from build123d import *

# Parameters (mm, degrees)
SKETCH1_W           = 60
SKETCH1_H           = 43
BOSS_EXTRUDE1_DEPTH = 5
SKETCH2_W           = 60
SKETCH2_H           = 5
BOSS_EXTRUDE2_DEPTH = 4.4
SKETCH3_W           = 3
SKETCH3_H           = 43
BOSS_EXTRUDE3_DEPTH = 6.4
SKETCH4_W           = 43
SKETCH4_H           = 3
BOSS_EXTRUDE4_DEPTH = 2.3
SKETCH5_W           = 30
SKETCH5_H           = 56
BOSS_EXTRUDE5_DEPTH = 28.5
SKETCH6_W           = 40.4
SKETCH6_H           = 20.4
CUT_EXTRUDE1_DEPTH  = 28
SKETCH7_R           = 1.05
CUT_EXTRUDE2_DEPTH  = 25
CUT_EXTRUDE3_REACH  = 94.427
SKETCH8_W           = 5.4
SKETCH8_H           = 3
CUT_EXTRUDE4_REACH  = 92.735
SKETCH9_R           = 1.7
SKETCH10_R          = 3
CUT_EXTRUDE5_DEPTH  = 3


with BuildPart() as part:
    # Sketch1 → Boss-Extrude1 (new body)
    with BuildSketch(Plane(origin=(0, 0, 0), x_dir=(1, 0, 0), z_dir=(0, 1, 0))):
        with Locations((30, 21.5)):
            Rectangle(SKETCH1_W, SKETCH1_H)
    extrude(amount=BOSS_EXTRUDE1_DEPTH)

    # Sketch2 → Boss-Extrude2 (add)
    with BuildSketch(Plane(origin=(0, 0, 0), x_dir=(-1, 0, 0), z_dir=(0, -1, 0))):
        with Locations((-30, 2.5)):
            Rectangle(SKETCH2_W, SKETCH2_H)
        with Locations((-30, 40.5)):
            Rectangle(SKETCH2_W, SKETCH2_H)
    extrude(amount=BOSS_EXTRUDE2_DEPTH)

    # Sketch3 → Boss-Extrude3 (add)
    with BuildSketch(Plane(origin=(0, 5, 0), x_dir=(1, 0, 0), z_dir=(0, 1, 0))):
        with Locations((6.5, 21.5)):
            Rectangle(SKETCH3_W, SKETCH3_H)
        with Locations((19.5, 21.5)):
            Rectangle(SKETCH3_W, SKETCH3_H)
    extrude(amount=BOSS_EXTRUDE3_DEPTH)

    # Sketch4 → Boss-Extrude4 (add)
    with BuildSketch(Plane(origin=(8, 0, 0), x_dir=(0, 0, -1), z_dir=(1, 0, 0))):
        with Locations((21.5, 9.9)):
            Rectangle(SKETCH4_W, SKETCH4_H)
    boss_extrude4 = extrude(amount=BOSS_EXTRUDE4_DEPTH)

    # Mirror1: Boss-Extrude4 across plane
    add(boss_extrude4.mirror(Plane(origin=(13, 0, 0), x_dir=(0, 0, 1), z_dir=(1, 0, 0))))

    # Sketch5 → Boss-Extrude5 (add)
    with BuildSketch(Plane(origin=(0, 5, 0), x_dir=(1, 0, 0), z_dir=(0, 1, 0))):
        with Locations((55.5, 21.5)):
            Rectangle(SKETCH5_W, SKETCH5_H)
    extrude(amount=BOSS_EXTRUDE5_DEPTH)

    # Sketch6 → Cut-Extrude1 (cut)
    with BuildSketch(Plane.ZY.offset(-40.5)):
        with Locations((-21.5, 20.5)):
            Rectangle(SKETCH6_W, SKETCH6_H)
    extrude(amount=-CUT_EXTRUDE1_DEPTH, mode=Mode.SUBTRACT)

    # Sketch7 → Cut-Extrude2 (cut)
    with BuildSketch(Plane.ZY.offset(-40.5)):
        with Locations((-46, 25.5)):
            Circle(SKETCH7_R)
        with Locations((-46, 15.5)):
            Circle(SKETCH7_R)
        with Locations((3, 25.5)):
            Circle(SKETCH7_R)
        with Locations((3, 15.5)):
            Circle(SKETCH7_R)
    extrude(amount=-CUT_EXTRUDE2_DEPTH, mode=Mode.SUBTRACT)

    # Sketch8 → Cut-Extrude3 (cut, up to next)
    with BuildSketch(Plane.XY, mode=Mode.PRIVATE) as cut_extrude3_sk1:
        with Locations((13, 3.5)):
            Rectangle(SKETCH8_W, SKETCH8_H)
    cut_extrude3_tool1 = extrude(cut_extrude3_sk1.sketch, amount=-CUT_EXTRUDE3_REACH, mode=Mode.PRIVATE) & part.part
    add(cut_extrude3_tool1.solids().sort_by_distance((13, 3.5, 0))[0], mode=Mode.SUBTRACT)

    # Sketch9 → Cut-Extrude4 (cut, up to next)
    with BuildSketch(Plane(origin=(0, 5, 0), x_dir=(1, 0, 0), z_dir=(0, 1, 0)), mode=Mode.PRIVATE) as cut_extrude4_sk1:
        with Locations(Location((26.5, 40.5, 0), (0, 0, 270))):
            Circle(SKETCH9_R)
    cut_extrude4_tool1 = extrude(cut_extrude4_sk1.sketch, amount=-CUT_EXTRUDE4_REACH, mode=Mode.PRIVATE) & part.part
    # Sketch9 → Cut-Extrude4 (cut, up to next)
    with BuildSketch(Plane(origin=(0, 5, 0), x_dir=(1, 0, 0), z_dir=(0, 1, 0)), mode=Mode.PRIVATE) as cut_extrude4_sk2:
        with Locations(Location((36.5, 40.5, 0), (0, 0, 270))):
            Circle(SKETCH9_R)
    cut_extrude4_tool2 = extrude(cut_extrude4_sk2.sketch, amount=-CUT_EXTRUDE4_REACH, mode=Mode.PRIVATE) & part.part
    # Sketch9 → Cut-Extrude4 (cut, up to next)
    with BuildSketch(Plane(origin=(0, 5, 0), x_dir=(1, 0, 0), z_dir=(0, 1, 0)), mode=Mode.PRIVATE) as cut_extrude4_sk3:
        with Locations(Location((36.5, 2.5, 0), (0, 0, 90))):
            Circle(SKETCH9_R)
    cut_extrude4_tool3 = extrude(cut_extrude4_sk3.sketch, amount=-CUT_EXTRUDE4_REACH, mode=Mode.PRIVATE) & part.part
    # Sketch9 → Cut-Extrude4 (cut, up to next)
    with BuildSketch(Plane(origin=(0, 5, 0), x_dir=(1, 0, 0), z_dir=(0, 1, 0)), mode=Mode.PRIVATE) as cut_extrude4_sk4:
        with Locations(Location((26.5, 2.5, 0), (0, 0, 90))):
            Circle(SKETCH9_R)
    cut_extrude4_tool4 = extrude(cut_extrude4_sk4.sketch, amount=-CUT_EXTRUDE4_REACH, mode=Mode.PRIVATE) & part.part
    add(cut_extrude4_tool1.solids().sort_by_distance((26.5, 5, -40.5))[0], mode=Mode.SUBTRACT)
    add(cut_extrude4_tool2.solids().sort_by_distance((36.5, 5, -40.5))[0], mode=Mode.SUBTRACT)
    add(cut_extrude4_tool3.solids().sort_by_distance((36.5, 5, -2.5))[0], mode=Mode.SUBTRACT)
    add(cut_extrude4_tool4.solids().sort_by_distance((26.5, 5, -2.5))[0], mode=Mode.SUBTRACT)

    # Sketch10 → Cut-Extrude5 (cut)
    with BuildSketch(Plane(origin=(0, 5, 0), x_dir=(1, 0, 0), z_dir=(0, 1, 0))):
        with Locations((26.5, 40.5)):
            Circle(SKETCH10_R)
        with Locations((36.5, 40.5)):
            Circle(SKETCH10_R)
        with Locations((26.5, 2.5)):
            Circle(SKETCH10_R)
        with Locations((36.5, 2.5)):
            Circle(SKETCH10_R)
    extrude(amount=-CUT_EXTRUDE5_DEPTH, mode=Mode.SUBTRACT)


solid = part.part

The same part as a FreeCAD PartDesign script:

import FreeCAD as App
import Part
import Sketcher

V = App.Vector

doc = App.newDocument("Part")
params = doc.addObject("Spreadsheet::Sheet", "Params")
for row, (alias, value) in enumerate([
    ("sketch1_width", "60 mm"),
    ("sketch1_height", "43 mm"),
    ("pad1_length", "5 mm"),
    ("sketch2_width", "60 mm"),
    ("sketch2_height", "5 mm"),
    ("pad2_length", "4.4 mm"),
    ("sketch3_width", "3 mm"),
    ("sketch3_height", "43 mm"),
    ("pad3_length", "6.4 mm"),
    ("sketch4_width", "3 mm"),
    ("sketch4_height", "43 mm"),
    ("pad4_length", "2.3 mm"),
    ("sketch5_width", "30 mm"),
    ("sketch5_height", "56 mm"),
    ("pad5_length", "28.5 mm"),
    ("sketch6_width", "20.4 mm"),
    ("sketch6_height", "40.4 mm"),
    ("pocket1_length", "28 mm"),
    ("sketch7_diameter", "2.1 mm"),
    ("pocket2_length", "25 mm"),
    ("sketch8_height", "3 mm"),
    ("sketch8_width", "5.4 mm"),
    ("sketch9_diameter", "3.4 mm"),
    ("sketch10_diameter", "3.4 mm"),
    ("sketch11_diameter", "3.4 mm"),
    ("sketch12_diameter", "3.4 mm"),
    ("sketch13_diameter", "6 mm"),
    ("pocket8_length", "3 mm"),
], start=1):
    params.set(f"A{row}", alias)
    params.set(f"B{row}", "=" + value)
    params.setAlias(f"B{row}", alias)

body = doc.addObject("PartDesign::Body", "Body")

# Sketch on XZ plane
sketch1 = body.newObject("Sketcher::SketchObject", "Sketch")
sketch1.AttachmentSupport = (doc.getObject("XZ_Plane"), [""])
sketch1.MapMode = "FlatFace"
sketch1.addGeometry(Part.LineSegment(V(0, -43, 0), V(0, 0, 0)), False)
sketch1.addGeometry(Part.LineSegment(V(0, 0, 0), V(60, 0, 0)), False)
sketch1.addGeometry(Part.LineSegment(V(60, 0, 0), V(60, -43, 0)), False)
sketch1.addGeometry(Part.LineSegment(V(60, -43, 0), V(0, -43, 0)), False)
sketch1.addConstraint(Sketcher.Constraint("Coincident", 0, 2, 1, 1))
sketch1.addConstraint(Sketcher.Constraint("Coincident", 1, 2, 2, 1))
sketch1.addConstraint(Sketcher.Constraint("Coincident", 2, 2, 3, 1))
sketch1.addConstraint(Sketcher.Constraint("Coincident", 3, 2, 0, 1))
sketch1.addConstraint(Sketcher.Constraint("Vertical", 0))
sketch1.addConstraint(Sketcher.Constraint("Horizontal", 1))
sketch1.addConstraint(Sketcher.Constraint("Vertical", 2))
sketch1.addConstraint(Sketcher.Constraint("Horizontal", 3))
sketch1.addConstraint(Sketcher.Constraint("Coincident", 0, 2, -1, 1))
sketch1.addConstraint(Sketcher.Constraint("DistanceX", 1, 1, 1, 2, 60.0))
sketch1.addConstraint(Sketcher.Constraint("DistanceY", 0, 1, 0, 2, 43.0))
sketch1.setExpression("Constraints[9]", "Params.sketch1_width")
sketch1.setExpression("Constraints[10]", "Params.sketch1_height")
pad1 = body.newObject("PartDesign::Pad", "Pad")
pad1.Profile = sketch1
pad1.setExpression("Length", "Params.pad1_length")
pad1.Reversed = True

# Sketch on XZ plane
sketch2 = body.newObject("Sketcher::SketchObject", "Sketch001")
sketch2.AttachmentSupport = (doc.getObject("XZ_Plane"), [""])
sketch2.MapMode = "FlatFace"
sketch2.addGeometry(Part.LineSegment(V(60, -5, 0), V(60, 0, 0)), False)
sketch2.addGeometry(Part.LineSegment(V(60, 0, 0), V(0, 0, 0)), False)
sketch2.addGeometry(Part.LineSegment(V(0, 0, 0), V(0, -5, 0)), False)
sketch2.addGeometry(Part.LineSegment(V(0, -5, 0), V(60, -5, 0)), False)
sketch2.addGeometry(Part.LineSegment(V(60, -43, 0), V(60, -38, 0)), False)
sketch2.addGeometry(Part.LineSegment(V(60, -38, 0), V(0, -38, 0)), False)
sketch2.addGeometry(Part.LineSegment(V(0, -38, 0), V(0, -43, 0)), False)
sketch2.addGeometry(Part.LineSegment(V(0, -43, 0), V(60, -43, 0)), False)
sketch2.addConstraint(Sketcher.Constraint("Coincident", 0, 2, 1, 1))
sketch2.addConstraint(Sketcher.Constraint("Coincident", 1, 2, 2, 1))
sketch2.addConstraint(Sketcher.Constraint("Coincident", 2, 2, 3, 1))
sketch2.addConstraint(Sketcher.Constraint("Coincident", 3, 2, 0, 1))
sketch2.addConstraint(Sketcher.Constraint("Coincident", 4, 2, 5, 1))
sketch2.addConstraint(Sketcher.Constraint("Coincident", 5, 2, 6, 1))
sketch2.addConstraint(Sketcher.Constraint("Coincident", 6, 2, 7, 1))
sketch2.addConstraint(Sketcher.Constraint("Coincident", 7, 2, 4, 1))
sketch2.addConstraint(Sketcher.Constraint("Vertical", 0))
sketch2.addConstraint(Sketcher.Constraint("Horizontal", 1))
sketch2.addConstraint(Sketcher.Constraint("Vertical", 2))
sketch2.addConstraint(Sketcher.Constraint("Horizontal", 3))
sketch2.addConstraint(Sketcher.Constraint("Vertical", 4))
sketch2.addConstraint(Sketcher.Constraint("Horizontal", 5))
sketch2.addConstraint(Sketcher.Constraint("Vertical", 6))
sketch2.addConstraint(Sketcher.Constraint("Horizontal", 7))
sketch2.addConstraint(Sketcher.Constraint("Coincident", 1, 2, -1, 1))
sketch2.addConstraint(Sketcher.Constraint("PointOnObject", 5, 2, -2))
sketch2.addConstraint(Sketcher.Constraint("Vertical", 3, 2, 4, 2))
sketch2.addConstraint(Sketcher.Constraint("Equal", 2, 4))
sketch2.addConstraint(Sketcher.Constraint("DistanceX", 1, 2, 1, 1, 60.0))
sketch2.addConstraint(Sketcher.Constraint("DistanceY", 0, 1, 0, 2, 5.0))
sketch2.addConstraint(Sketcher.Constraint("DistanceY", 4, 2, -1, 1, 38.0))
sketch2.setExpression("Constraints[20]", "Params.sketch2_width")
sketch2.setExpression("Constraints[21]", "Params.sketch2_height")
pad2 = body.newObject("PartDesign::Pad", "Pad001")
pad2.Profile = sketch2
pad2.setExpression("Length", "Params.pad2_length")

# Sketch on XZ plane
sketch3 = body.newObject("Sketcher::SketchObject", "Sketch002")
sketch3.AttachmentSupport = (doc.getObject("XZ_Plane"), [""])
sketch3.MapMode = "FlatFace"
sketch3.AttachmentOffset = App.Placement(V(0, 0, -5), App.Rotation())
sketch3.addGeometry(Part.LineSegment(V(5, -43, 0), V(5, 0, 0)), False)
sketch3.addGeometry(Part.LineSegment(V(5, 0, 0), V(8, 0, 0)), False)
sketch3.addGeometry(Part.LineSegment(V(8, 0, 0), V(8, -43, 0)), False)
sketch3.addGeometry(Part.LineSegment(V(8, -43, 0), V(5, -43, 0)), False)
sketch3.addGeometry(Part.LineSegment(V(18, -43, 0), V(18, 0, 0)), False)
sketch3.addGeometry(Part.LineSegment(V(18, 0, 0), V(21, 0, 0)), False)
sketch3.addGeometry(Part.LineSegment(V(21, 0, 0), V(21, -43, 0)), False)
sketch3.addGeometry(Part.LineSegment(V(21, -43, 0), V(18, -43, 0)), False)
sketch3.addConstraint(Sketcher.Constraint("Coincident", 0, 2, 1, 1))
sketch3.addConstraint(Sketcher.Constraint("Coincident", 1, 2, 2, 1))
sketch3.addConstraint(Sketcher.Constraint("Coincident", 2, 2, 3, 1))
sketch3.addConstraint(Sketcher.Constraint("Coincident", 3, 2, 0, 1))
sketch3.addConstraint(Sketcher.Constraint("Coincident", 4, 2, 5, 1))
sketch3.addConstraint(Sketcher.Constraint("Coincident", 5, 2, 6, 1))
sketch3.addConstraint(Sketcher.Constraint("Coincident", 6, 2, 7, 1))
sketch3.addConstraint(Sketcher.Constraint("Coincident", 7, 2, 4, 1))
sketch3.addConstraint(Sketcher.Constraint("Vertical", 0))
sketch3.addConstraint(Sketcher.Constraint("Horizontal", 1))
sketch3.addConstraint(Sketcher.Constraint("Vertical", 2))
sketch3.addConstraint(Sketcher.Constraint("Horizontal", 3))
sketch3.addConstraint(Sketcher.Constraint("Vertical", 4))
sketch3.addConstraint(Sketcher.Constraint("Horizontal", 5))
sketch3.addConstraint(Sketcher.Constraint("Vertical", 6))
sketch3.addConstraint(Sketcher.Constraint("Horizontal", 7))
sketch3.addConstraint(Sketcher.Constraint("PointOnObject", 0, 2, -1))
sketch3.addConstraint(Sketcher.Constraint("PointOnObject", 4, 2, -1))
sketch3.addConstraint(Sketcher.Constraint("Horizontal", 3, 2, 6, 2))
sketch3.addConstraint(Sketcher.Constraint("Equal", 3, 5))
sketch3.addConstraint(Sketcher.Constraint("DistanceX", 1, 1, 1, 2, 3.0))
sketch3.addConstraint(Sketcher.Constraint("DistanceY", 0, 1, 0, 2, 43.0))
sketch3.addConstraint(Sketcher.Constraint("DistanceX", -1, 1, 0, 2, 5.0))
sketch3.addConstraint(Sketcher.Constraint("DistanceX", -1, 1, 4, 2, 18.0))
sketch3.setExpression("Constraints[20]", "Params.sketch3_width")
sketch3.setExpression("Constraints[21]", "Params.sketch3_height")
pad3 = body.newObject("PartDesign::Pad", "Pad002")
pad3.Profile = sketch3
pad3.setExpression("Length", "Params.pad3_length")
pad3.Reversed = True

# Sketch on YZ plane
sketch4 = body.newObject("Sketcher::SketchObject", "Sketch003")
sketch4.AttachmentSupport = (doc.getObject("YZ_Plane"), [""])
sketch4.MapMode = "FlatFace"
sketch4.AttachmentOffset = App.Placement(V(0, 0, 8), App.Rotation())
sketch4.addGeometry(Part.LineSegment(V(11.4, 0, 0), V(8.4, 0, 0)), False)
sketch4.addGeometry(Part.LineSegment(V(8.4, 0, 0), V(8.4, -43, 0)), False)
sketch4.addGeometry(Part.LineSegment(V(8.4, -43, 0), V(11.4, -43, 0)), False)
sketch4.addGeometry(Part.LineSegment(V(11.4, -43, 0), V(11.4, 0, 0)), False)
sketch4.addConstraint(Sketcher.Constraint("Coincident", 0, 2, 1, 1))
sketch4.addConstraint(Sketcher.Constraint("Coincident", 1, 2, 2, 1))
sketch4.addConstraint(Sketcher.Constraint("Coincident", 2, 2, 3, 1))
sketch4.addConstraint(Sketcher.Constraint("Coincident", 3, 2, 0, 1))
sketch4.addConstraint(Sketcher.Constraint("Horizontal", 0))
sketch4.addConstraint(Sketcher.Constraint("Vertical", 1))
sketch4.addConstraint(Sketcher.Constraint("Horizontal", 2))
sketch4.addConstraint(Sketcher.Constraint("Vertical", 3))
sketch4.addConstraint(Sketcher.Constraint("PointOnObject", 0, 2, -1))
sketch4.addConstraint(Sketcher.Constraint("DistanceX", 0, 2, 0, 1, 3.0))
sketch4.addConstraint(Sketcher.Constraint("DistanceY", 1, 2, 1, 1, 43.0))
sketch4.addConstraint(Sketcher.Constraint("DistanceX", -1, 1, 0, 2, 8.4))
sketch4.setExpression("Constraints[9]", "Params.sketch4_width")
sketch4.setExpression("Constraints[10]", "Params.sketch4_height")
pad4 = body.newObject("PartDesign::Pad", "Pad003")
pad4.Profile = sketch4
pad4.setExpression("Length", "Params.pad4_length")
doc.recompute()

datumplane = body.newObject("PartDesign::Plane", "DatumPlane")
datumplane.AttachmentSupport = (doc.getObject("YZ_Plane"), [""])
datumplane.MapMode = "FlatFace"
datumplane.AttachmentOffset = App.Placement(V(0, 0, 13), App.Rotation())
mirrored = body.newObject("PartDesign::Mirrored", "Mirrored")
mirrored.Originals = [pad4]
mirrored.MirrorPlane = (datumplane, [""])
body.Tip = mirrored

# Sketch on XZ plane
sketch5 = body.newObject("Sketcher::SketchObject", "Sketch004")
sketch5.AttachmentSupport = (doc.getObject("XZ_Plane"), [""])
sketch5.MapMode = "FlatFace"
sketch5.AttachmentOffset = App.Placement(V(0, 0, -5), App.Rotation())
sketch5.addGeometry(Part.LineSegment(V(40, -50, 0), V(40, 6, 0)), False)
sketch5.addGeometry(Part.LineSegment(V(40, 6, 0), V(70, 6, 0)), False)
sketch5.addGeometry(Part.LineSegment(V(70, 6, 0), V(70, -50, 0)), False)
sketch5.addGeometry(Part.LineSegment(V(70, -50, 0), V(40, -50, 0)), False)
sketch5.addConstraint(Sketcher.Constraint("Coincident", 0, 2, 1, 1))
sketch5.addConstraint(Sketcher.Constraint("Coincident", 1, 2, 2, 1))
sketch5.addConstraint(Sketcher.Constraint("Coincident", 2, 2, 3, 1))
sketch5.addConstraint(Sketcher.Constraint("Coincident", 3, 2, 0, 1))
sketch5.addConstraint(Sketcher.Constraint("Vertical", 0))
sketch5.addConstraint(Sketcher.Constraint("Horizontal", 1))
sketch5.addConstraint(Sketcher.Constraint("Vertical", 2))
sketch5.addConstraint(Sketcher.Constraint("Horizontal", 3))
sketch5.addConstraint(Sketcher.Constraint("DistanceX", 1, 1, 1, 2, 30.0))
sketch5.addConstraint(Sketcher.Constraint("DistanceY", 0, 1, 0, 2, 56.0))
sketch5.addConstraint(Sketcher.Constraint("DistanceX", -1, 1, 0, 2, 40.5))
sketch5.addConstraint(Sketcher.Constraint("DistanceY", -1, 1, 0, 2, 6.5))
sketch5.setExpression("Constraints[8]", "Params.sketch5_width")
sketch5.setExpression("Constraints[9]", "Params.sketch5_height")
pad5 = body.newObject("PartDesign::Pad", "Pad004")
pad5.Profile = sketch5
pad5.setExpression("Length", "Params.pad5_length")
pad5.Reversed = True

# Sketch on YZ plane
sketch6 = body.newObject("Sketcher::SketchObject", "Sketch005")
sketch6.AttachmentSupport = (doc.getObject("YZ_Plane"), [""])
sketch6.MapMode = "FlatFace"
sketch6.AttachmentOffset = App.Placement(V(0, 0, 40.5), App.Rotation())
sketch6.addGeometry(Part.LineSegment(V(31, -42, 0), V(10, -42, 0)), False)
sketch6.addGeometry(Part.LineSegment(V(10, -42, 0), V(10, -1, 0)), False)
sketch6.addGeometry(Part.LineSegment(V(10, -1, 0), V(31, -1, 0)), False)
sketch6.addGeometry(Part.LineSegment(V(31, -1, 0), V(31, -42, 0)), False)
sketch6.addConstraint(Sketcher.Constraint("Coincident", 0, 2, 1, 1))
sketch6.addConstraint(Sketcher.Constraint("Coincident", 1, 2, 2, 1))
sketch6.addConstraint(Sketcher.Constraint("Coincident", 2, 2, 3, 1))
sketch6.addConstraint(Sketcher.Constraint("Coincident", 3, 2, 0, 1))
sketch6.addConstraint(Sketcher.Constraint("Horizontal", 0))
sketch6.addConstraint(Sketcher.Constraint("Vertical", 1))
sketch6.addConstraint(Sketcher.Constraint("Horizontal", 2))
sketch6.addConstraint(Sketcher.Constraint("Vertical", 3))
sketch6.addConstraint(Sketcher.Constraint("DistanceX", 0, 2, 0, 1, 20.4))
sketch6.addConstraint(Sketcher.Constraint("DistanceY", 1, 1, 1, 2, 40.4))
sketch6.addConstraint(Sketcher.Constraint("DistanceX", -1, 1, 0, 2, 10.3))
sketch6.addConstraint(Sketcher.Constraint("DistanceY", 0, 2, -1, 1, 41.7))
sketch6.setExpression("Constraints[8]", "Params.sketch6_width")
sketch6.setExpression("Constraints[9]", "Params.sketch6_height")
pocket1 = body.newObject("PartDesign::Pocket", "Pocket")
pocket1.Profile = sketch6
pocket1.setExpression("Length", "Params.pocket1_length")
pocket1.Reversed = True

# Sketch on YZ plane
sketch7 = body.newObject("Sketcher::SketchObject", "Sketch006")
sketch7.AttachmentSupport = (doc.getObject("YZ_Plane"), [""])
sketch7.MapMode = "FlatFace"
sketch7.AttachmentOffset = App.Placement(V(0, 0, 40.5), App.Rotation())
sketch7.addGeometry(Part.Circle(V(25.5, -46, 0), V(0, 0, 1), 1.1), False)
sketch7.addGeometry(Part.Circle(V(15.5, -46, 0), V(0, 0, 1), 1.1), False)
sketch7.addGeometry(Part.Circle(V(25.5, 3, 0), V(0, 0, 1), 1.1), False)
sketch7.addGeometry(Part.Circle(V(15.5, 3, 0), V(0, 0, 1), 1.1), False)
sketch7.addConstraint(Sketcher.Constraint("Equal", 0, 1))
sketch7.addConstraint(Sketcher.Constraint("Equal", 1, 2))
sketch7.addConstraint(Sketcher.Constraint("Equal", 2, 3))
sketch7.addConstraint(Sketcher.Constraint("Horizontal", 0, 3, 1, 3))
sketch7.addConstraint(Sketcher.Constraint("Horizontal", 2, 3, 3, 3))
sketch7.addConstraint(Sketcher.Constraint("Vertical", 0, 3, 2, 3))
sketch7.addConstraint(Sketcher.Constraint("Vertical", 1, 3, 3, 3))
sketch7.addConstraint(Sketcher.Constraint("Diameter", 0, 2.1))
sketch7.addConstraint(Sketcher.Constraint("DistanceY", 0, 3, -1, 1, 46.0))
sketch7.addConstraint(Sketcher.Constraint("DistanceY", -1, 1, 2, 3, 3.0))
sketch7.addConstraint(Sketcher.Constraint("DistanceX", 1, 3, 0, 3, 10.0))
sketch7.addConstraint(Sketcher.Constraint("DistanceX", -1, 1, 0, 3, 25.5))
sketch7.setExpression("Constraints[7]", "Params.sketch7_diameter")
pocket2 = body.newObject("PartDesign::Pocket", "Pocket001")
pocket2.Profile = sketch7
pocket2.setExpression("Length", "Params.pocket2_length")
pocket2.Reversed = True

# Sketch on XY plane
sketch8 = body.newObject("Sketcher::SketchObject", "Sketch007")
sketch8.AttachmentSupport = (doc.getObject("XY_Plane"), [""])
sketch8.MapMode = "FlatFace"
sketch8.addGeometry(Part.LineSegment(V(10.3, 5, 0), V(10.3, 2, 0)), False)
sketch8.addGeometry(Part.LineSegment(V(10.3, 2, 0), V(15.7, 2, 0)), False)
sketch8.addGeometry(Part.LineSegment(V(15.7, 2, 0), V(15.7, 5, 0)), False)
sketch8.addGeometry(Part.LineSegment(V(15.7, 5, 0), V(10.3, 5, 0)), False)
sketch8.addConstraint(Sketcher.Constraint("Coincident", 0, 2, 1, 1))
sketch8.addConstraint(Sketcher.Constraint("Coincident", 1, 2, 2, 1))
sketch8.addConstraint(Sketcher.Constraint("Coincident", 2, 2, 3, 1))
sketch8.addConstraint(Sketcher.Constraint("Coincident", 3, 2, 0, 1))
sketch8.addConstraint(Sketcher.Constraint("Vertical", 0))
sketch8.addConstraint(Sketcher.Constraint("Horizontal", 1))
sketch8.addConstraint(Sketcher.Constraint("Vertical", 2))
sketch8.addConstraint(Sketcher.Constraint("Horizontal", 3))
sketch8.addConstraint(Sketcher.Constraint("DistanceY", 0, 2, 0, 1, 3.0))
sketch8.addConstraint(Sketcher.Constraint("DistanceX", 1, 1, 1, 2, 5.4))
sketch8.addConstraint(Sketcher.Constraint("DistanceY", -1, 1, 0, 2, 2.0))
sketch8.addConstraint(Sketcher.Constraint("DistanceX", -1, 1, 0, 2, 10.3))
sketch8.setExpression("Constraints[8]", "Params.sketch8_height")
sketch8.setExpression("Constraints[9]", "Params.sketch8_width")
pocket3 = body.newObject("PartDesign::Pocket", "Pocket002")
pocket3.Profile = sketch8
pocket3.Type = "UpToFirst"

# Sketch on XZ plane
sketch9 = body.newObject("Sketcher::SketchObject", "Sketch008")
sketch9.AttachmentSupport = (doc.getObject("XZ_Plane"), [""])
sketch9.MapMode = "FlatFace"
sketch9.AttachmentOffset = App.Placement(V(0, 0, -5), App.Rotation())
sketch9.addGeometry(Part.Circle(V(26.5, -40.5, 0), V(0, 0, 1), 1.7), False)
sketch9.addConstraint(Sketcher.Constraint("Diameter", 0, 3.4))
sketch9.addConstraint(Sketcher.Constraint("DistanceX", -1, 1, 0, 3, 26.5))
sketch9.addConstraint(Sketcher.Constraint("DistanceY", 0, 3, -1, 1, 40.5))
sketch9.setExpression("Constraints[0]", "Params.sketch9_diameter")
pocket4 = body.newObject("PartDesign::Pocket", "Pocket003")
pocket4.Profile = sketch9
pocket4.Type = "UpToFirst"
pocket4.Reversed = True

# Sketch on XZ plane
sketch10 = body.newObject("Sketcher::SketchObject", "Sketch009")
sketch10.AttachmentSupport = (doc.getObject("XZ_Plane"), [""])
sketch10.MapMode = "FlatFace"
sketch10.AttachmentOffset = App.Placement(V(0, 0, -5), App.Rotation())
sketch10.addGeometry(Part.Circle(V(36.5, -40.5, 0), V(0, 0, 1), 1.7), False)
sketch10.addConstraint(Sketcher.Constraint("Diameter", 0, 3.4))
sketch10.addConstraint(Sketcher.Constraint("DistanceX", -1, 1, 0, 3, 36.5))
sketch10.addConstraint(Sketcher.Constraint("DistanceY", 0, 3, -1, 1, 40.5))
sketch10.setExpression("Constraints[0]", "Params.sketch10_diameter")
pocket5 = body.newObject("PartDesign::Pocket", "Pocket004")
pocket5.Profile = sketch10
pocket5.Type = "UpToFirst"
pocket5.Reversed = True

# Sketch on XZ plane
sketch11 = body.newObject("Sketcher::SketchObject", "Sketch010")
sketch11.AttachmentSupport = (doc.getObject("XZ_Plane"), [""])
sketch11.MapMode = "FlatFace"
sketch11.AttachmentOffset = App.Placement(V(0, 0, -5), App.Rotation())
sketch11.addGeometry(Part.Circle(V(36.5, -2.5, 0), V(0, 0, 1), 1.7), False)
sketch11.addConstraint(Sketcher.Constraint("Diameter", 0, 3.4))
sketch11.addConstraint(Sketcher.Constraint("DistanceX", -1, 1, 0, 3, 36.5))
sketch11.addConstraint(Sketcher.Constraint("DistanceY", 0, 3, -1, 1, 2.5))
sketch11.setExpression("Constraints[0]", "Params.sketch11_diameter")
pocket6 = body.newObject("PartDesign::Pocket", "Pocket005")
pocket6.Profile = sketch11
pocket6.Type = "UpToFirst"
pocket6.Reversed = True

# Sketch on XZ plane
sketch12 = body.newObject("Sketcher::SketchObject", "Sketch011")
sketch12.AttachmentSupport = (doc.getObject("XZ_Plane"), [""])
sketch12.MapMode = "FlatFace"
sketch12.AttachmentOffset = App.Placement(V(0, 0, -5), App.Rotation())
sketch12.addGeometry(Part.Circle(V(26.5, -2.5, 0), V(0, 0, 1), 1.7), False)
sketch12.addConstraint(Sketcher.Constraint("Diameter", 0, 3.4))
sketch12.addConstraint(Sketcher.Constraint("DistanceX", -1, 1, 0, 3, 26.5))
sketch12.addConstraint(Sketcher.Constraint("DistanceY", 0, 3, -1, 1, 2.5))
sketch12.setExpression("Constraints[0]", "Params.sketch12_diameter")
pocket7 = body.newObject("PartDesign::Pocket", "Pocket006")
pocket7.Profile = sketch12
pocket7.Type = "UpToFirst"
pocket7.Reversed = True

# Sketch on XZ plane
sketch13 = body.newObject("Sketcher::SketchObject", "Sketch012")
sketch13.AttachmentSupport = (doc.getObject("XZ_Plane"), [""])
sketch13.MapMode = "FlatFace"
sketch13.AttachmentOffset = App.Placement(V(0, 0, -5), App.Rotation())
sketch13.addGeometry(Part.Circle(V(26.5, -40.5, 0), V(0, 0, 1), 3), False)
sketch13.addGeometry(Part.Circle(V(36.5, -40.5, 0), V(0, 0, 1), 3), False)
sketch13.addGeometry(Part.Circle(V(26.5, -2.5, 0), V(0, 0, 1), 3), False)
sketch13.addGeometry(Part.Circle(V(36.5, -2.5, 0), V(0, 0, 1), 3), False)
sketch13.addConstraint(Sketcher.Constraint("Equal", 0, 1))
sketch13.addConstraint(Sketcher.Constraint("Equal", 1, 2))
sketch13.addConstraint(Sketcher.Constraint("Equal", 2, 3))
sketch13.addConstraint(Sketcher.Constraint("Horizontal", 0, 3, 1, 3))
sketch13.addConstraint(Sketcher.Constraint("Horizontal", 2, 3, 3, 3))
sketch13.addConstraint(Sketcher.Constraint("Vertical", 0, 3, 2, 3))
sketch13.addConstraint(Sketcher.Constraint("Vertical", 1, 3, 3, 3))
sketch13.addConstraint(Sketcher.Constraint("Diameter", 0, 6.0))
sketch13.addConstraint(Sketcher.Constraint("DistanceX", 0, 3, 1, 3, 10.0))
sketch13.addConstraint(Sketcher.Constraint("DistanceY", 0, 3, 2, 3, 38.0))
sketch13.addConstraint(Sketcher.Constraint("DistanceX", -1, 1, 0, 3, 26.5))
sketch13.addConstraint(Sketcher.Constraint("DistanceY", 0, 3, -1, 1, 40.5))
sketch13.setExpression("Constraints[7]", "Params.sketch13_diameter")
pocket8 = body.newObject("PartDesign::Pocket", "Pocket007")
pocket8.Profile = sketch13
pocket8.setExpression("Length", "Params.pocket8_length")
pocket8.Reversed = True

doc.recompute()
